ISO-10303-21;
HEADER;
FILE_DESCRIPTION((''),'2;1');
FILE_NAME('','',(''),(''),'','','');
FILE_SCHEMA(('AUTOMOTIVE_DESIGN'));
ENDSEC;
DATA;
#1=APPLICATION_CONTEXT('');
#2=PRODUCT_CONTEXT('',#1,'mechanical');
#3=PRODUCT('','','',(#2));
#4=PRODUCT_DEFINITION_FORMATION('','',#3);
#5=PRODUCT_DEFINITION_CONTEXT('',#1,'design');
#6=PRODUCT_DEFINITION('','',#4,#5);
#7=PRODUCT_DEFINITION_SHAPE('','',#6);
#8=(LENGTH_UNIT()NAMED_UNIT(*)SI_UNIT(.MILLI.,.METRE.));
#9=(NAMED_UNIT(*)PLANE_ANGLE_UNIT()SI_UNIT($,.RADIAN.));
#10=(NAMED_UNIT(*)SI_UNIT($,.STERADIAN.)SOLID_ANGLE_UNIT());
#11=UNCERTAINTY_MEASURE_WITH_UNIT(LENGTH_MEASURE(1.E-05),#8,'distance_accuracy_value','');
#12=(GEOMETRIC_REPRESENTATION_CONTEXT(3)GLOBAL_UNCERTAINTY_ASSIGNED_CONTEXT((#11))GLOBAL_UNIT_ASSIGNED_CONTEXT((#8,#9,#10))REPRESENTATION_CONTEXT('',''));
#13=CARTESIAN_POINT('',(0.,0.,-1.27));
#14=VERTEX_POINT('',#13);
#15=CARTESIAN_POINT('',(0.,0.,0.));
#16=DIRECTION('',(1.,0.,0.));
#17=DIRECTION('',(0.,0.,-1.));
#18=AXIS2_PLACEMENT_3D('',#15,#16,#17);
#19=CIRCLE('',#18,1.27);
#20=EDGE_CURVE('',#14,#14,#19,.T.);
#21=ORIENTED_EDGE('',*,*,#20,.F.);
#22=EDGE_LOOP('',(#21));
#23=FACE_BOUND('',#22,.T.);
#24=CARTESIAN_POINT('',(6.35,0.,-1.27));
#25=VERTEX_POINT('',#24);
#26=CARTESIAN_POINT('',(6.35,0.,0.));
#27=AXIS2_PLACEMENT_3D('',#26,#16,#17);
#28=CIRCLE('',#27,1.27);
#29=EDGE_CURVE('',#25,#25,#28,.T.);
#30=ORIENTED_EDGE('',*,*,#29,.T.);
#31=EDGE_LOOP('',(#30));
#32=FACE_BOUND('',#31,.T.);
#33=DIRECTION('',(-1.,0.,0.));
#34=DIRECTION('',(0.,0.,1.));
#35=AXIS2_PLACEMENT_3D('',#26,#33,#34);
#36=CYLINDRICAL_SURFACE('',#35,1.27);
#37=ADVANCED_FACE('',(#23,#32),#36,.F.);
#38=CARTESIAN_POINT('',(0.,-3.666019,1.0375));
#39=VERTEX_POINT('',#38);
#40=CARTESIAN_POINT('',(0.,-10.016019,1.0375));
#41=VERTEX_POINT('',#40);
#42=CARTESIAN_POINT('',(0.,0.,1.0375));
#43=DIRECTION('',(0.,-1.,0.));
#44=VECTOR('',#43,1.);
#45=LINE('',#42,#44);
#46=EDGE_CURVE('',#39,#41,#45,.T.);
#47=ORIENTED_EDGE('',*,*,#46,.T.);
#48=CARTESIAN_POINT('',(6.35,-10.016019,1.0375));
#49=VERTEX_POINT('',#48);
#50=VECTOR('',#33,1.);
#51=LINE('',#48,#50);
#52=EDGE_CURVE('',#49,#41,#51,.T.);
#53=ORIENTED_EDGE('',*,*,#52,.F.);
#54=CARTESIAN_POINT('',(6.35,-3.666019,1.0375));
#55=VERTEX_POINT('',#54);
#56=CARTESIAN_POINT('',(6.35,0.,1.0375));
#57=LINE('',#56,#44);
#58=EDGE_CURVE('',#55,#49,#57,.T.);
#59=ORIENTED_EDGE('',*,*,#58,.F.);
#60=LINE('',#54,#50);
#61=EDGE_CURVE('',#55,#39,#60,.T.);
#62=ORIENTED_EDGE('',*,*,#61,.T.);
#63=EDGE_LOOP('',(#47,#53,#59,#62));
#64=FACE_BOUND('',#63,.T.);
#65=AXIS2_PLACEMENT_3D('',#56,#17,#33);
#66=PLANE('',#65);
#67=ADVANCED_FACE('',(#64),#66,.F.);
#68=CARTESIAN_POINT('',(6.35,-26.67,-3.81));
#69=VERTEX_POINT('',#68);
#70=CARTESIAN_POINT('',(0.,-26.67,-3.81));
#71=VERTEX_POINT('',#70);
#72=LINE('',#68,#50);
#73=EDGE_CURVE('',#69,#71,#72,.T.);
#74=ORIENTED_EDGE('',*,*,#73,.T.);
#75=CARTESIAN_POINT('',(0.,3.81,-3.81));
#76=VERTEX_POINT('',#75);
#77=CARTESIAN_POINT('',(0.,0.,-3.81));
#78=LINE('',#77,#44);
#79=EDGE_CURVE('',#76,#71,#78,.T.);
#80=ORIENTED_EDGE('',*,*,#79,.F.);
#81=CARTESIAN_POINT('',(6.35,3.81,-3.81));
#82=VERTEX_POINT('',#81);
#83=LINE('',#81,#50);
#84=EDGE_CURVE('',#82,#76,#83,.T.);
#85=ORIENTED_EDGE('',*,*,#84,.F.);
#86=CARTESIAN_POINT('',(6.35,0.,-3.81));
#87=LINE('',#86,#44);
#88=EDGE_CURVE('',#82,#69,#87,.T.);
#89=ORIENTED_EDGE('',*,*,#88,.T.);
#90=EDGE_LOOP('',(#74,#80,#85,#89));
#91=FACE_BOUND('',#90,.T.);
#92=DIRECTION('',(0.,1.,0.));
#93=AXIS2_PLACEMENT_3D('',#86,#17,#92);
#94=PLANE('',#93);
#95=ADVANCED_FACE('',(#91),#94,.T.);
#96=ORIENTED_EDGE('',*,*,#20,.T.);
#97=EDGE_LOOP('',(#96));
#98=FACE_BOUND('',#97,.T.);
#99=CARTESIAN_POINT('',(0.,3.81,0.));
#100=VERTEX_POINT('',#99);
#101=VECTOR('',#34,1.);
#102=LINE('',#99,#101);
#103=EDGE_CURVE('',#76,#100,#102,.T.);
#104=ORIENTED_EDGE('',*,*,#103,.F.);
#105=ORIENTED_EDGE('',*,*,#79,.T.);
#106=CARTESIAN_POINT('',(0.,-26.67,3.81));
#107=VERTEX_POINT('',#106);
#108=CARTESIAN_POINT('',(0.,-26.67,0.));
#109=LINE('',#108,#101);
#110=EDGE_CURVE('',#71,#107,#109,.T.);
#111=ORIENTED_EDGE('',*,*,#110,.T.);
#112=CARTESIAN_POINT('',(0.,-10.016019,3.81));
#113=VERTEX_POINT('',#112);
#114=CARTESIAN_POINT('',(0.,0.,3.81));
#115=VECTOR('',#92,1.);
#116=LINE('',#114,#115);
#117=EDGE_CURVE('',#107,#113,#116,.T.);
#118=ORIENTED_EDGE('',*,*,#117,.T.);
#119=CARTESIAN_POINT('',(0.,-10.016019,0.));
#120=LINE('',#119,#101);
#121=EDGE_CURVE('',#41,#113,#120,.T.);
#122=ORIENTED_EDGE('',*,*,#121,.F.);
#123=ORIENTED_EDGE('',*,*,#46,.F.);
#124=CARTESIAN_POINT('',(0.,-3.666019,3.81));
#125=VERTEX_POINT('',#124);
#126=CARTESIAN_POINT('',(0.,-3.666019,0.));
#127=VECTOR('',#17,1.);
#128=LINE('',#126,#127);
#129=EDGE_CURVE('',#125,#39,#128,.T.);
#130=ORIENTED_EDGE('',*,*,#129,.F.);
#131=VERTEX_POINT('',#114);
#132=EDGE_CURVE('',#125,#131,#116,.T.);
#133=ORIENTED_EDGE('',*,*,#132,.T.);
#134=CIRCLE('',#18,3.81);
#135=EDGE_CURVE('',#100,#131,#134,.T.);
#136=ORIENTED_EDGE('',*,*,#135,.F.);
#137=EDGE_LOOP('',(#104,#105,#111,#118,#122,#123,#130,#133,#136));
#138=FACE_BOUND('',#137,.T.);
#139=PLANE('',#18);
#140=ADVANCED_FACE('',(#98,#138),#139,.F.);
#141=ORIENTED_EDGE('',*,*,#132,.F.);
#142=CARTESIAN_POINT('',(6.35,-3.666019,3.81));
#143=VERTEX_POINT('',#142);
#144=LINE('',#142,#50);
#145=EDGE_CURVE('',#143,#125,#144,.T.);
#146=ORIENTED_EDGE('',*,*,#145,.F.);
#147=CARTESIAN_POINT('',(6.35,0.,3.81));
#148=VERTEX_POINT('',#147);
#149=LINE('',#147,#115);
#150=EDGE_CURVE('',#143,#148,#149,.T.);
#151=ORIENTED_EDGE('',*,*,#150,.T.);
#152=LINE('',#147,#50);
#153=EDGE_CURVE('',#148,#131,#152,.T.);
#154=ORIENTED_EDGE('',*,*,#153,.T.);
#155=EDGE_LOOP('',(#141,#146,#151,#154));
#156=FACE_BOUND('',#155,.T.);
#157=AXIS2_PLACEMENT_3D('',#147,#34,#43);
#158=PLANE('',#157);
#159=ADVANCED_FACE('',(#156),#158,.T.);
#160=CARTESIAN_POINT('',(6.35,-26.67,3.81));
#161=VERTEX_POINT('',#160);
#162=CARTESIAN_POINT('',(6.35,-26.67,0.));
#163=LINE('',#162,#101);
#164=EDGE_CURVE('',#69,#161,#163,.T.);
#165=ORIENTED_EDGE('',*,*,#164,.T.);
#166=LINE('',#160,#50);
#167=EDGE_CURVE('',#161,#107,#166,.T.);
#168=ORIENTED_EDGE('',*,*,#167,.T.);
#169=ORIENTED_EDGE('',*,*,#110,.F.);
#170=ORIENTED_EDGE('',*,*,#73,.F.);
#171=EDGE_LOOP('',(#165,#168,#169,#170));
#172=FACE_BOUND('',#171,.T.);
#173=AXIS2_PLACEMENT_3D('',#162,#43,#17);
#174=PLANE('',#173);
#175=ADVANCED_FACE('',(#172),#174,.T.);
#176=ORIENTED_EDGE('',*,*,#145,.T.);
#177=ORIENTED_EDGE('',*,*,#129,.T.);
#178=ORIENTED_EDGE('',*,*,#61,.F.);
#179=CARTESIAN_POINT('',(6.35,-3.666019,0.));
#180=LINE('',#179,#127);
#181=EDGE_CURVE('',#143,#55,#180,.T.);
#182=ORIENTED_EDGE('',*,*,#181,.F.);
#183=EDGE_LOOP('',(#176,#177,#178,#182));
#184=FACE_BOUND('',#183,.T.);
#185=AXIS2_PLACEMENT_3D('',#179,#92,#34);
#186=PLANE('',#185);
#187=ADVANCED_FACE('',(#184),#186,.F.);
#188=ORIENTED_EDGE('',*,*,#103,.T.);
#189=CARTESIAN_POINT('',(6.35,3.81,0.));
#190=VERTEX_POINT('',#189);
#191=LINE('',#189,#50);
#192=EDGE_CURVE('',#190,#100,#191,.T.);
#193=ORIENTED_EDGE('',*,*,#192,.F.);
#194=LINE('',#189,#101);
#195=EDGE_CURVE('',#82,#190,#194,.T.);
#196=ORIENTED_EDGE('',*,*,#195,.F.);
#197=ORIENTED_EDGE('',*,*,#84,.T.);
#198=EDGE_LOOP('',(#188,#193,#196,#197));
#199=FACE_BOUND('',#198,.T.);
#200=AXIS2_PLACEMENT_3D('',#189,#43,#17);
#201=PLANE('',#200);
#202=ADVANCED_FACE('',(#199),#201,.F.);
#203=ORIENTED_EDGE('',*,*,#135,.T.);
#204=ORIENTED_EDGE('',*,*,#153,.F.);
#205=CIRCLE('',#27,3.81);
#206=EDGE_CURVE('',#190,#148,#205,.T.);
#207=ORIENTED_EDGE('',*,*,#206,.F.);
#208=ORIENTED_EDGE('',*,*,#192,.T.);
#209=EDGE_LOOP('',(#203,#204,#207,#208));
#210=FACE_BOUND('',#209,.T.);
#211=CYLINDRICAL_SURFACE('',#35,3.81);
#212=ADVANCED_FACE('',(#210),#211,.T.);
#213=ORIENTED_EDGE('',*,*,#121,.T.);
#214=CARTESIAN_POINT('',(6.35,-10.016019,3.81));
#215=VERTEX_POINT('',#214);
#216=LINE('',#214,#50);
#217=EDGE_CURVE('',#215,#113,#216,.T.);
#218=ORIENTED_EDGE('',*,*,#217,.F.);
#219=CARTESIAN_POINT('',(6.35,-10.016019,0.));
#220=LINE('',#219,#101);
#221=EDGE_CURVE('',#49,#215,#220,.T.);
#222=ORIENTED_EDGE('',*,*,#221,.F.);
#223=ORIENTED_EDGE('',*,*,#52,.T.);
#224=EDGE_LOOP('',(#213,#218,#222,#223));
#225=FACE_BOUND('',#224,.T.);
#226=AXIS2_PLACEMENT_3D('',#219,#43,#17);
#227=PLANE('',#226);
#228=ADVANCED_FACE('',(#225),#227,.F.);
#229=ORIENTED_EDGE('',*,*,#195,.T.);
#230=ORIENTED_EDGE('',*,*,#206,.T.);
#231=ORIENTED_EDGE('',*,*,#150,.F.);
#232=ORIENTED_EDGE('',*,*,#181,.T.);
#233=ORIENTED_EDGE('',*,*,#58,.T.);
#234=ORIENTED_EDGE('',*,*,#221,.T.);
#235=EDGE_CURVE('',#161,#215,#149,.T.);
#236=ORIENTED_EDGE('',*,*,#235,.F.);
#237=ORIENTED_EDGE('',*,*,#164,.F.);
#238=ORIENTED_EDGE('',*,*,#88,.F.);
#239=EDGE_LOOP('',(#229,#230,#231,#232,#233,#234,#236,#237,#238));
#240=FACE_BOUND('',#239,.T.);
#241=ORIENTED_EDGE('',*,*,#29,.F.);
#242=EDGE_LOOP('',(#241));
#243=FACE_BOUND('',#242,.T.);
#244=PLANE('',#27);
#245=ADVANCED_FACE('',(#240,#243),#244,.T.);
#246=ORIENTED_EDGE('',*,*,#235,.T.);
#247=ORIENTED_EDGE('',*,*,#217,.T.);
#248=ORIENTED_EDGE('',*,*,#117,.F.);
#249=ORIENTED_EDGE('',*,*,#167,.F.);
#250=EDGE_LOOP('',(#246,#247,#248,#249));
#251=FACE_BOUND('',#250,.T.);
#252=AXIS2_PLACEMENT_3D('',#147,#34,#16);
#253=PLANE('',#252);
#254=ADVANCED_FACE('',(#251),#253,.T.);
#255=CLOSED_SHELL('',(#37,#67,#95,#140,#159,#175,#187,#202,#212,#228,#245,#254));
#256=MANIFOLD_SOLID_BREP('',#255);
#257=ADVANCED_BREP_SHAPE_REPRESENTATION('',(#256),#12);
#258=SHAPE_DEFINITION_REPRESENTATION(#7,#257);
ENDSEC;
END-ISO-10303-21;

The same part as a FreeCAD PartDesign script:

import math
import FreeCAD as App
import Part
import Sketcher
Q = App.Units.Quantity

doc = App.newDocument("Part")
body = doc.addObject("PartDesign::Body", "Body")

# Sketch on YZ plane
sketch1 = doc.addObject("Sketcher::SketchObject", "Sketch")
body.addObject(sketch1)
sketch1.AttachmentSupport = (doc.YZ_Plane, [""])
sketch1.MapMode = "FlatFace"
sketch1.addGeometry([
    Part.LineSegment(App.Vector(-26.7, -3.8, 0), App.Vector(3.8, -3.8, 0)),  # 0
    Part.LineSegment(App.Vector(3.8, -3.8, 0), App.Vector(3.8, 0, 0)),  # 1
    Part.ArcOfCircle(Part.Circle(App.Vector(0, 0, 0), App.Vector(0, 0, 1), 3.8), math.radians(0), math.radians(90)),  # 2
    Part.LineSegment(App.Vector(0, 3.8, 0), App.Vector(-3.7, 3.8, 0)),  # 3
    Part.LineSegment(App.Vector(-3.7, 3.8, 0), App.Vector(-3.7, 1, 0)),  # 4
    Part.LineSegment(App.Vector(-3.7, 1, 0), App.Vector(-10, 1, 0)),  # 5
    Part.LineSegment(App.Vector(-10, 1, 0), App.Vector(-10, 3.8, 0)),  # 6
    Part.LineSegment(App.Vector(-10, 3.8, 0), App.Vector(-26.7, 3.8, 0)),  # 7
    Part.LineSegment(App.Vector(-26.7, 3.8, 0), App.Vector(-26.7, -3.8, 0)),  # 8
    Part.Circle(App.Vector(0, 0, 0), App.Vector(0, 0, 1), 1.3),  # 9
], False)
sketch1.addConstraint([
    Sketcher.Constraint("Coincident", 0, 2, 1, 1),
    Sketcher.Constraint("Tangent", 1, 2, 2, 1),
    Sketcher.Constraint("Tangent", 2, 2, 3, 1),
    Sketcher.Constraint("Coincident", 3, 2, 4, 1),
    Sketcher.Constraint("Coincident", 4, 2, 5, 1),
    Sketcher.Constraint("Coincident", 5, 2, 6, 1),
    Sketcher.Constraint("Coincident", 6, 2, 7, 1),
    Sketcher.Constraint("Coincident", 7, 2, 8, 1),
    Sketcher.Constraint("Coincident", 8, 2, 0, 1),
    Sketcher.Constraint("Horizontal", 0),
    Sketcher.Constraint("Vertical", 1),
    Sketcher.Constraint("Horizontal", 3),
    Sketcher.Constraint("Vertical", 4),
    Sketcher.Constraint("Horizontal", 5),
    Sketcher.Constraint("Vertical", 6),
    Sketcher.Constraint("Horizontal", 7),
    Sketcher.Constraint("Vertical", 8),
    Sketcher.Constraint("Coincident", 2, 3, -1, 1),
    Sketcher.Constraint("Coincident", 9, 3, -1, 1),
    Sketcher.Constraint("Horizontal", 3, 2, 6, 2),
    Sketcher.Constraint("Diameter", 9, Q("0.1 in")),
    Sketcher.Constraint("Radius", 2, Q("0.15 in")),
    Sketcher.Constraint("DistanceX", 0, 1, 0, 2, Q("1.2 in")),
    Sketcher.Constraint("DistanceY", 8, 2, 8, 1, Q("0.3 in")),
    Sketcher.Constraint("DistanceX", 5, 2, 5, 1, Q("0.25 in")),
    Sketcher.Constraint("DistanceY", 4, 2, 4, 1, 2.7725),
    Sketcher.Constraint("DistanceX", 3, 2, 3, 1, 3.666019),
])
pad1 = doc.addObject("PartDesign::Pad", "Pad")
body.addObject(pad1)
pad1.Profile = sketch1
pad1.Length = Q("0.25 in")

doc.recompute()
